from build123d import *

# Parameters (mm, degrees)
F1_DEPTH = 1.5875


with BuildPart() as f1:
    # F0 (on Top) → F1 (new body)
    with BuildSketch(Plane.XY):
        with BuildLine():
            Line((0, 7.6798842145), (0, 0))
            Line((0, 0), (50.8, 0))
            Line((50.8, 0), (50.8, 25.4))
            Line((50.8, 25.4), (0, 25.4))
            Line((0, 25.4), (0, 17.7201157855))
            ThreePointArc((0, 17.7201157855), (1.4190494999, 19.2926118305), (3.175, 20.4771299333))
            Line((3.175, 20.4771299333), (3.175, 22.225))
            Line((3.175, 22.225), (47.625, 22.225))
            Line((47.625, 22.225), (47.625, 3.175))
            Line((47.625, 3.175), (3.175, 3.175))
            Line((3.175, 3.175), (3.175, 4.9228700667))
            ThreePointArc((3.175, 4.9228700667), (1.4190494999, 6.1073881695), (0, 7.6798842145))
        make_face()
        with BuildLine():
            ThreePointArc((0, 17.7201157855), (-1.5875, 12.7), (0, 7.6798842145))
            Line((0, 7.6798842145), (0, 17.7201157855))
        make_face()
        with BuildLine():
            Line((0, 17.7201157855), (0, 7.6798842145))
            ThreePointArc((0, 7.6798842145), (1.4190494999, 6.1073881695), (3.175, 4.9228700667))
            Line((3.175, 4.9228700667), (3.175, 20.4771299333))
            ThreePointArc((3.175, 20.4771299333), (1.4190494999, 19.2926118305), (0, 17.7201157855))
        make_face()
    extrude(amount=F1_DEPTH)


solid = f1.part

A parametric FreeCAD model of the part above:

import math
import FreeCAD as App
import Part
import Sketcher
from FreeCAD import Vector
Q = App.Units.Quantity

doc = App.newDocument("Part")
body = doc.addObject("PartDesign::Body", "Body")

sketch1 = doc.addObject("Sketcher::SketchObject", "Sketch")
body.addObject(sketch1)
sketch1.AttachmentSupport = (doc.XY_Plane, [""])
sketch1.MapMode = "FlatFace"
sketch1.addGeometry(Part.LineSegment(Vector(0, 8, 0), Vector(0, 0, 0)), False)
sketch1.addGeometry(Part.LineSegment(Vector(0, 0, 0), Vector(51, 0, 0)), False)
sketch1.addGeometry(Part.LineSegment(Vector(51, 0, 0), Vector(51, 25, 0)), False)
sketch1.addGeometry(Part.LineSegment(Vector(51, 25, 0), Vector(0, 25, 0)), False)
sketch1.addGeometry(Part.LineSegment(Vector(0, 25, 0), Vector(0, 18, 0)), False)
sketch1.addGeometry(Part.ArcOfCircle(Part.Circle(Vector(7, 13, 0), Vector(0, 0, 1), 9), math.radians(145), math.radians(215)), False)
sketch1.addGeometry(Part.LineSegment(Vector(3, 22, 0), Vector(48, 22, 0)), False)
sketch1.addGeometry(Part.LineSegment(Vector(48, 22, 0), Vector(48, 3, 0)), False)
sketch1.addGeometry(Part.LineSegment(Vector(48, 3, 0), Vector(3, 3, 0)), False)
sketch1.addGeometry(Part.LineSegment(Vector(3, 3, 0), Vector(3, 22, 0)), False)
sketch1.addConstraint(Sketcher.Constraint("Coincident", 0, 2, 1, 1))
sketch1.addConstraint(Sketcher.Constraint("Coincident", 1, 2, 2, 1))
sketch1.addConstraint(Sketcher.Constraint("Coincident", 2, 2, 3, 1))
sketch1.addConstraint(Sketcher.Constraint("Coincident", 3, 2, 4, 1))
sketch1.addConstraint(Sketcher.Constraint("Coincident", 4, 2, 5, 1))
sketch1.addConstraint(Sketcher.Constraint("Coincident", 5, 2, 0, 1))
sketch1.addConstraint(Sketcher.Constraint("Coincident", 6, 2, 7, 1))
sketch1.addConstraint(Sketcher.Constraint("Coincident", 7, 2, 8, 1))
sketch1.addConstraint(Sketcher.Constraint("Coincident", 8, 2, 9, 1))
sketch1.addConstraint(Sketcher.Constraint("Coincident", 9, 2, 6, 1))
sketch1.addConstraint(Sketcher.Constraint("Vertical", 0))
sketch1.addConstraint(Sketcher.Constraint("Horizontal", 1))
sketch1.addConstraint(Sketcher.Constraint("Vertical", 2))
sketch1.addConstraint(Sketcher.Constraint("Horizontal", 3))
sketch1.addConstraint(Sketcher.Constraint("Vertical", 4))
sketch1.addConstraint(Sketcher.Constraint("Horizontal", 6))
sketch1.addConstraint(Sketcher.Constraint("Vertical", 7))
sketch1.addConstraint(Sketcher.Constraint("Horizontal", 8))
sketch1.addConstraint(Sketcher.Constraint("Vertical", 9))
sketch1.addConstraint(Sketcher.Constraint("Coincident", 0, 2, -1, 1))
sketch1.addConstraint(Sketcher.Constraint("PointOnObject", 3, 2, -2))
sketch1.addConstraint(Sketcher.Constraint("Equal", 0, 4))
sketch1.addConstraint(Sketcher.Constraint("DistanceX", 1, 1, 1, 2, Q("2 in")))
sketch1.addConstraint(Sketcher.Constraint("DistanceY", 2, 1, 2, 2, Q("1 in")))
sketch1.addConstraint(Sketcher.Constraint("Radius", 5, Q("0.34375 in")))
sketch1.addConstraint(Sketcher.Constraint("DistanceX", 6, 1, 6, 2, Q("1.75 in")))
sketch1.addConstraint(Sketcher.Constraint("DistanceY", 7, 2, 7, 1, Q("0.75 in")))
sketch1.addConstraint(Sketcher.Constraint("DistanceX", -1, 1, 5, 3, Q("0.28125 in")))
sketch1.addConstraint(Sketcher.Constraint("DistanceX", -1, 1, 6, 2, Q("1.875 in")))
sketch1.addConstraint(Sketcher.Constraint("DistanceY", -1, 1, 6, 2, Q("0.875 in")))
pad1 = doc.addObject("PartDesign::Pad", "Pad")
body.addObject(pad1)
pad1.Profile = sketch1
pad1.Length = Q("0.0625 in")

doc.recompute()
